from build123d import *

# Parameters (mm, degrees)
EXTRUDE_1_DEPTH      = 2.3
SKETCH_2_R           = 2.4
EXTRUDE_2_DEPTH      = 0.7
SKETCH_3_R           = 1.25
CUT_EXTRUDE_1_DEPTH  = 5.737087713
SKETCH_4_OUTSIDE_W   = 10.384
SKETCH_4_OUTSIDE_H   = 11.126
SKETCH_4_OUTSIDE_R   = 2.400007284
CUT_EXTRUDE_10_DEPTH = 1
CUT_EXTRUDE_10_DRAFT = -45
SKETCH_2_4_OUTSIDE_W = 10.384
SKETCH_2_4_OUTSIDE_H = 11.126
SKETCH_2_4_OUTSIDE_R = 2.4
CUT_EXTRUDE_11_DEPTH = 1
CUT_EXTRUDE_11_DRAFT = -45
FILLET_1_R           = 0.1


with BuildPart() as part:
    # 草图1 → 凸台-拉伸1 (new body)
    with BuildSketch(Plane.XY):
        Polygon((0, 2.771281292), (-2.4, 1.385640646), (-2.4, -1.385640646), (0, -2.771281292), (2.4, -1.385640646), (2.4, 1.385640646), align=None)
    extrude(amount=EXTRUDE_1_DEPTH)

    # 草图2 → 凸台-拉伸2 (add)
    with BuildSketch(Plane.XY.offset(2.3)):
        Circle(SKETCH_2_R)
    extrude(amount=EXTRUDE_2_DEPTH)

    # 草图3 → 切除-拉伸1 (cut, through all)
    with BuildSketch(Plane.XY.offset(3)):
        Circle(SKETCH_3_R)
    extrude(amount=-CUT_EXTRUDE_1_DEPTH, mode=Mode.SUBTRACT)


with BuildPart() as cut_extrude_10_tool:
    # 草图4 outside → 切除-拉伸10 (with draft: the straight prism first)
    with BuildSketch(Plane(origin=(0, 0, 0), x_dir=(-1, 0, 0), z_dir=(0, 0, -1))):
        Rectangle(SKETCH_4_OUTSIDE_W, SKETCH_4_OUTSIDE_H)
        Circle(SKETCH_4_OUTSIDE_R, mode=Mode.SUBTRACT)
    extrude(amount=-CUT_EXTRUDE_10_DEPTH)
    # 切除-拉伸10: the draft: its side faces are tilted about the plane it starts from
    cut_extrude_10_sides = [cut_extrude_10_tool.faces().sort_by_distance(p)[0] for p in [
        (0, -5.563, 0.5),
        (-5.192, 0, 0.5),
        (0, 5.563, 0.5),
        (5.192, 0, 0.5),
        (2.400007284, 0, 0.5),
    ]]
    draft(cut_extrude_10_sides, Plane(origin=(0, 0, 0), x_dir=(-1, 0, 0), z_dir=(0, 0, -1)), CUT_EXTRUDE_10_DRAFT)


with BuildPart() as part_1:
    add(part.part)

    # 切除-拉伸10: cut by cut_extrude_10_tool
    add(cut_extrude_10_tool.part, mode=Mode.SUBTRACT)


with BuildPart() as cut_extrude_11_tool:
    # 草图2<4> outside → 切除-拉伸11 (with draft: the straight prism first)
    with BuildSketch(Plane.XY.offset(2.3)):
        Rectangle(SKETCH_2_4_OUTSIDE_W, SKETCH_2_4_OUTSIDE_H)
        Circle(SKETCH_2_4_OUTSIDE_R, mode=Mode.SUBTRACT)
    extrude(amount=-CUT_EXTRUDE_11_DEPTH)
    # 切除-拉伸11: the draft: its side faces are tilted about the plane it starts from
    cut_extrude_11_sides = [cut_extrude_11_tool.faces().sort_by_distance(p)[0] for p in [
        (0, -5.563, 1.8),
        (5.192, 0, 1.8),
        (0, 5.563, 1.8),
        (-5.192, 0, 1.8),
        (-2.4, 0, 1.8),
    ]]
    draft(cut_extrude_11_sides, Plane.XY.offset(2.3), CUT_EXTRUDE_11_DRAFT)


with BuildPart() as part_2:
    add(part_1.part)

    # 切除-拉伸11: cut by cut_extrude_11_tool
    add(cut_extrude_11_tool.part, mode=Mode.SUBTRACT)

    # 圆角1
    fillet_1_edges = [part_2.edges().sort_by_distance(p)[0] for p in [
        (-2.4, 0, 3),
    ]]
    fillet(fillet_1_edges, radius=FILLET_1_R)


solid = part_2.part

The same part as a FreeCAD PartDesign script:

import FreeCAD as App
import Part
import Sketcher

V = App.Vector
Q = App.Units.Quantity


def edges_at(feature, points):
    """Names of the edges that pass closest to the given points."""
    edges = feature.Shape.Edges
    near = lambda p: min(range(len(edges)), key=lambda i: edges[i].distToShape(Part.Vertex(*p))[0])
    return sorted({f"Edge{near(p) + 1}" for p in points})


def faces_at(feature, points):
    """Names of the faces that lie closest to the given points."""
    faces = feature.Shape.Faces
    near = lambda p: min(range(len(faces)), key=lambda i: faces[i].distToShape(Part.Vertex(*p))[0])
    return sorted({f"Face{near(p) + 1}" for p in points})

doc = App.newDocument("Part")
body = doc.addObject("PartDesign::Body", "Body")

sketch1 = body.newObject("Sketcher::SketchObject", "Sketch")
sketch1.AttachmentSupport = (doc.getObject("XY_Plane"), [""])
sketch1.MapMode = "FlatFace"
sketch1.addGeometry([
    Part.LineSegment(V(0, 2.771281, 0), V(-2.4, 1.385641, 0)),
    Part.LineSegment(V(-2.4, 1.385641, 0), V(-2.4, -1.385641, 0)),
    Part.LineSegment(V(-2.4, -1.385641, 0), V(0, -2.771281, 0)),
    Part.LineSegment(V(0, -2.771281, 0), V(2.4, -1.385641, 0)),
    Part.LineSegment(V(2.4, -1.385641, 0), V(2.4, 1.385641, 0)),
    Part.LineSegment(V(2.4, 1.385641, 0), V(0, 2.771281, 0)),
], False)
sketch1.addConstraint([
    Sketcher.Constraint("Coincident", 0, 2, 1, 1),
    Sketcher.Constraint("Coincident", 1, 2, 2, 1),
    Sketcher.Constraint("Coincident", 2, 2, 3, 1),
    Sketcher.Constraint("Coincident", 3, 2, 4, 1),
    Sketcher.Constraint("Coincident", 4, 2, 5, 1),
    Sketcher.Constraint("Coincident", 5, 2, 0, 1),
    Sketcher.Constraint("Vertical", 1),
    Sketcher.Constraint("Vertical", 4),
    Sketcher.Constraint("Symmetric", 0, 2, 3, 2, -1, 1),
    Sketcher.Constraint("Symmetric", 2, 2, 5, 2, -1, 1),
    Sketcher.Constraint("PointOnObject", 2, 2, -2),
    Sketcher.Constraint("Parallel", 2, 5),
    Sketcher.Constraint("Horizontal", 1, 2, 3, 2),
    Sketcher.Constraint("Angle", 0, Q("-150 deg")),
    Sketcher.Constraint("DistanceX", 0, 2, -1, 1, Q("2.4 mm")),
    Sketcher.Constraint("DistanceY", 1, 2, 1, 1, Q("2.771281 mm")),
])
pad1 = body.newObject("PartDesign::Pad", "Pad")
pad1.Profile = sketch1
pad1.Length = 2.3

sketch2 = body.newObject("Sketcher::SketchObject", "Sketch001")
sketch2.AttachmentSupport = (doc.getObject("XY_Plane"), [""])
sketch2.MapMode = "FlatFace"
sketch2.AttachmentOffset = App.Placement(V(0, 0, 2.3), App.Rotation())
sketch2.addGeometry(Part.Circle(V(0, 0, 0), V(0, 0, 1), 2.4), False)
sketch2.addConstraint([
    Sketcher.Constraint("Coincident", 0, 3, -1, 1),
    Sketcher.Constraint("Diameter", 0, Q("4.8 mm")),
])
pad2 = body.newObject("PartDesign::Pad", "Pad001")
pad2.Profile = sketch2
pad2.Length = 0.7

sketch3 = body.newObject("Sketcher::SketchObject", "Sketch002")
sketch3.AttachmentSupport = (doc.getObject("XY_Plane"), [""])
sketch3.MapMode = "FlatFace"
sketch3.AttachmentOffset = App.Placement(V(0, 0, 3), App.Rotation())
sketch3.addGeometry(Part.Circle(V(0, 0, 0), V(0, 0, 1), 1.25), False)
sketch3.addConstraint([
    Sketcher.Constraint("Coincident", 0, 3, -1, 1),
    Sketcher.Constraint("Diameter", 0, Q("2.5 mm")),
])
pocket1 = body.newObject("PartDesign::Pocket", "Pocket")
pocket1.Profile = sketch3
pocket1.Type = "ThroughAll"
body2 = doc.addObject("PartDesign::Body", "Body001")

sketch4 = body2.newObject("Sketcher::SketchObject", "Sketch003")
sketch4.AttachmentSupport = (doc.getObject("XY_Plane001"), [""])
sketch4.MapMode = "FlatFace"
sketch4.addGeometry([
    Part.LineSegment(V(5.192, 5.563, 0), V(5.192, -5.563, 0)),
    Part.LineSegment(V(5.192, -5.563, 0), V(-5.192, -5.563, 0)),
    Part.LineSegment(V(-5.192, -5.563, 0), V(-5.192, 5.563, 0)),
    Part.LineSegment(V(-5.192, 5.563, 0), V(5.192, 5.563, 0)),
    Part.Circle(V(0, 0, 0), V(0, 0, 1), 2.400007),
], False)
sketch4.addConstraint([
    Sketcher.Constraint("Coincident", 0, 2, 1, 1),
    Sketcher.Constraint("Coincident", 1, 2, 2, 1),
    Sketcher.Constraint("Coincident", 2, 2, 3, 1),
    Sketcher.Constraint("Coincident", 3, 2, 0, 1),
    Sketcher.Constraint("Vertical", 0),
    Sketcher.Constraint("Horizontal", 1),
    Sketcher.Constraint("Vertical", 2),
    Sketcher.Constraint("Horizontal", 3),
    Sketcher.Constraint("Coincident", 4, 3, -1, 1),
    Sketcher.Constraint("Symmetric", 0, 2, 2, 2, -1, 1),
    Sketcher.Constraint("DistanceX", 1, 2, 1, 1, Q("10.384 mm")),
    Sketcher.Constraint("DistanceY", 0, 2, 0, 1, Q("11.126 mm")),
    Sketcher.Constraint("Diameter", 4, Q("4.800015 mm")),
])
pad3 = body2.newObject("PartDesign::Pad", "Pad002")
pad3.Profile = sketch4
pad3.Length = 1
doc.recompute()

draft = body2.newObject("PartDesign::Draft", "Draft")
draft.Base = (pad3, faces_at(pad3, [
    (0, -5.563, 0.5),
    (-5.192, 0, 0.5),
    (0, 5.563, 0.5),
    (5.192, 0, 0.5),
    (2.4, 0, 0.5),
]))
draft.NeutralPlane = (doc.getObject("XY_Plane001"), [""])
draft.Angle = 45
draft.Reversed = False
doc.recompute()

boolean = body.newObject("PartDesign::Boolean", "Boolean")
boolean.Type = "Cut"
boolean.addObjects([body2])
body3 = doc.addObject("PartDesign::Body", "Body002")

sketch5 = body3.newObject("Sketcher::SketchObject", "Sketch004")
sketch5.AttachmentSupport = (doc.getObject("XY_Plane002"), [""])
sketch5.MapMode = "FlatFace"
sketch5.AttachmentOffset = App.Placement(V(0, 0, 2.3), App.Rotation())
sketch5.addGeometry([
    Part.LineSegment(V(-5.192, 5.563, 0), V(-5.192, -5.563, 0)),
    Part.LineSegment(V(-5.192, -5.563, 0), V(5.192, -5.563, 0)),
    Part.LineSegment(V(5.192, -5.563, 0), V(5.192, 5.563, 0)),
    Part.LineSegment(V(5.192, 5.563, 0), V(-5.192, 5.563, 0)),
    Part.Circle(V(0, 0, 0), V(0, 0, 1), 2.4),
], False)
sketch5.addConstraint([
    Sketcher.Constraint("Coincident", 0, 2, 1, 1),
    Sketcher.Constraint("Coincident", 1, 2, 2, 1),
    Sketcher.Constraint("Coincident", 2, 2, 3, 1),
    Sketcher.Constraint("Coincident", 3, 2, 0, 1),
    Sketcher.Constraint("Vertical", 0),
    Sketcher.Constraint("Horizontal", 1),
    Sketcher.Constraint("Vertical", 2),
    Sketcher.Constraint("Horizontal", 3),
    Sketcher.Constraint("Coincident", 4, 3, -1, 1),
    Sketcher.Constraint("Symmetric", 0, 2, 2, 2, -1, 1),
    Sketcher.Constraint("Diameter", 4, Q("4.8 mm")),
    Sketcher.Constraint("DistanceX", 1, 1, 1, 2, Q("10.384 mm")),
    Sketcher.Constraint("DistanceY", 0, 2, 0, 1, Q("11.126 mm")),
])
pad4 = body3.newObject("PartDesign::Pad", "Pad003")
pad4.Profile = sketch5
pad4.Length = 1
pad4.Reversed = True
doc.recompute()

datumplane = body3.newObject("PartDesign::Plane", "DatumPlane")
datumplane.AttachmentSupport = (doc.getObject("XY_Plane002"), [""])
datumplane.MapMode = "FlatFace"
datumplane.AttachmentOffset = App.Placement(V(0, 0, 2.3), App.Rotation())
draft2 = body3.newObject("PartDesign::Draft", "Draft001")
draft2.Base = (pad4, faces_at(pad4, [
    (0, -5.563, 1.8),
    (5.192, 0, 1.8),
    (0, 5.563, 1.8),
    (-5.192, 0, 1.8),
    (-2.4, 0, 1.8),
]))
draft2.NeutralPlane = (datumplane, [""])
draft2.Angle = 45
draft2.Reversed = True
doc.recompute()

boolean2 = body.newObject("PartDesign::Boolean", "Boolean001")
boolean2.Type = "Cut"
boolean2.addObjects([body3])
doc.recompute()

fillet = body.newObject("PartDesign::Fillet", "Fillet")
fillet.Base = (boolean2, edges_at(boolean2, [(-2.4, 0, 3)]))
fillet.Radius = 0.1

doc.recompute()
